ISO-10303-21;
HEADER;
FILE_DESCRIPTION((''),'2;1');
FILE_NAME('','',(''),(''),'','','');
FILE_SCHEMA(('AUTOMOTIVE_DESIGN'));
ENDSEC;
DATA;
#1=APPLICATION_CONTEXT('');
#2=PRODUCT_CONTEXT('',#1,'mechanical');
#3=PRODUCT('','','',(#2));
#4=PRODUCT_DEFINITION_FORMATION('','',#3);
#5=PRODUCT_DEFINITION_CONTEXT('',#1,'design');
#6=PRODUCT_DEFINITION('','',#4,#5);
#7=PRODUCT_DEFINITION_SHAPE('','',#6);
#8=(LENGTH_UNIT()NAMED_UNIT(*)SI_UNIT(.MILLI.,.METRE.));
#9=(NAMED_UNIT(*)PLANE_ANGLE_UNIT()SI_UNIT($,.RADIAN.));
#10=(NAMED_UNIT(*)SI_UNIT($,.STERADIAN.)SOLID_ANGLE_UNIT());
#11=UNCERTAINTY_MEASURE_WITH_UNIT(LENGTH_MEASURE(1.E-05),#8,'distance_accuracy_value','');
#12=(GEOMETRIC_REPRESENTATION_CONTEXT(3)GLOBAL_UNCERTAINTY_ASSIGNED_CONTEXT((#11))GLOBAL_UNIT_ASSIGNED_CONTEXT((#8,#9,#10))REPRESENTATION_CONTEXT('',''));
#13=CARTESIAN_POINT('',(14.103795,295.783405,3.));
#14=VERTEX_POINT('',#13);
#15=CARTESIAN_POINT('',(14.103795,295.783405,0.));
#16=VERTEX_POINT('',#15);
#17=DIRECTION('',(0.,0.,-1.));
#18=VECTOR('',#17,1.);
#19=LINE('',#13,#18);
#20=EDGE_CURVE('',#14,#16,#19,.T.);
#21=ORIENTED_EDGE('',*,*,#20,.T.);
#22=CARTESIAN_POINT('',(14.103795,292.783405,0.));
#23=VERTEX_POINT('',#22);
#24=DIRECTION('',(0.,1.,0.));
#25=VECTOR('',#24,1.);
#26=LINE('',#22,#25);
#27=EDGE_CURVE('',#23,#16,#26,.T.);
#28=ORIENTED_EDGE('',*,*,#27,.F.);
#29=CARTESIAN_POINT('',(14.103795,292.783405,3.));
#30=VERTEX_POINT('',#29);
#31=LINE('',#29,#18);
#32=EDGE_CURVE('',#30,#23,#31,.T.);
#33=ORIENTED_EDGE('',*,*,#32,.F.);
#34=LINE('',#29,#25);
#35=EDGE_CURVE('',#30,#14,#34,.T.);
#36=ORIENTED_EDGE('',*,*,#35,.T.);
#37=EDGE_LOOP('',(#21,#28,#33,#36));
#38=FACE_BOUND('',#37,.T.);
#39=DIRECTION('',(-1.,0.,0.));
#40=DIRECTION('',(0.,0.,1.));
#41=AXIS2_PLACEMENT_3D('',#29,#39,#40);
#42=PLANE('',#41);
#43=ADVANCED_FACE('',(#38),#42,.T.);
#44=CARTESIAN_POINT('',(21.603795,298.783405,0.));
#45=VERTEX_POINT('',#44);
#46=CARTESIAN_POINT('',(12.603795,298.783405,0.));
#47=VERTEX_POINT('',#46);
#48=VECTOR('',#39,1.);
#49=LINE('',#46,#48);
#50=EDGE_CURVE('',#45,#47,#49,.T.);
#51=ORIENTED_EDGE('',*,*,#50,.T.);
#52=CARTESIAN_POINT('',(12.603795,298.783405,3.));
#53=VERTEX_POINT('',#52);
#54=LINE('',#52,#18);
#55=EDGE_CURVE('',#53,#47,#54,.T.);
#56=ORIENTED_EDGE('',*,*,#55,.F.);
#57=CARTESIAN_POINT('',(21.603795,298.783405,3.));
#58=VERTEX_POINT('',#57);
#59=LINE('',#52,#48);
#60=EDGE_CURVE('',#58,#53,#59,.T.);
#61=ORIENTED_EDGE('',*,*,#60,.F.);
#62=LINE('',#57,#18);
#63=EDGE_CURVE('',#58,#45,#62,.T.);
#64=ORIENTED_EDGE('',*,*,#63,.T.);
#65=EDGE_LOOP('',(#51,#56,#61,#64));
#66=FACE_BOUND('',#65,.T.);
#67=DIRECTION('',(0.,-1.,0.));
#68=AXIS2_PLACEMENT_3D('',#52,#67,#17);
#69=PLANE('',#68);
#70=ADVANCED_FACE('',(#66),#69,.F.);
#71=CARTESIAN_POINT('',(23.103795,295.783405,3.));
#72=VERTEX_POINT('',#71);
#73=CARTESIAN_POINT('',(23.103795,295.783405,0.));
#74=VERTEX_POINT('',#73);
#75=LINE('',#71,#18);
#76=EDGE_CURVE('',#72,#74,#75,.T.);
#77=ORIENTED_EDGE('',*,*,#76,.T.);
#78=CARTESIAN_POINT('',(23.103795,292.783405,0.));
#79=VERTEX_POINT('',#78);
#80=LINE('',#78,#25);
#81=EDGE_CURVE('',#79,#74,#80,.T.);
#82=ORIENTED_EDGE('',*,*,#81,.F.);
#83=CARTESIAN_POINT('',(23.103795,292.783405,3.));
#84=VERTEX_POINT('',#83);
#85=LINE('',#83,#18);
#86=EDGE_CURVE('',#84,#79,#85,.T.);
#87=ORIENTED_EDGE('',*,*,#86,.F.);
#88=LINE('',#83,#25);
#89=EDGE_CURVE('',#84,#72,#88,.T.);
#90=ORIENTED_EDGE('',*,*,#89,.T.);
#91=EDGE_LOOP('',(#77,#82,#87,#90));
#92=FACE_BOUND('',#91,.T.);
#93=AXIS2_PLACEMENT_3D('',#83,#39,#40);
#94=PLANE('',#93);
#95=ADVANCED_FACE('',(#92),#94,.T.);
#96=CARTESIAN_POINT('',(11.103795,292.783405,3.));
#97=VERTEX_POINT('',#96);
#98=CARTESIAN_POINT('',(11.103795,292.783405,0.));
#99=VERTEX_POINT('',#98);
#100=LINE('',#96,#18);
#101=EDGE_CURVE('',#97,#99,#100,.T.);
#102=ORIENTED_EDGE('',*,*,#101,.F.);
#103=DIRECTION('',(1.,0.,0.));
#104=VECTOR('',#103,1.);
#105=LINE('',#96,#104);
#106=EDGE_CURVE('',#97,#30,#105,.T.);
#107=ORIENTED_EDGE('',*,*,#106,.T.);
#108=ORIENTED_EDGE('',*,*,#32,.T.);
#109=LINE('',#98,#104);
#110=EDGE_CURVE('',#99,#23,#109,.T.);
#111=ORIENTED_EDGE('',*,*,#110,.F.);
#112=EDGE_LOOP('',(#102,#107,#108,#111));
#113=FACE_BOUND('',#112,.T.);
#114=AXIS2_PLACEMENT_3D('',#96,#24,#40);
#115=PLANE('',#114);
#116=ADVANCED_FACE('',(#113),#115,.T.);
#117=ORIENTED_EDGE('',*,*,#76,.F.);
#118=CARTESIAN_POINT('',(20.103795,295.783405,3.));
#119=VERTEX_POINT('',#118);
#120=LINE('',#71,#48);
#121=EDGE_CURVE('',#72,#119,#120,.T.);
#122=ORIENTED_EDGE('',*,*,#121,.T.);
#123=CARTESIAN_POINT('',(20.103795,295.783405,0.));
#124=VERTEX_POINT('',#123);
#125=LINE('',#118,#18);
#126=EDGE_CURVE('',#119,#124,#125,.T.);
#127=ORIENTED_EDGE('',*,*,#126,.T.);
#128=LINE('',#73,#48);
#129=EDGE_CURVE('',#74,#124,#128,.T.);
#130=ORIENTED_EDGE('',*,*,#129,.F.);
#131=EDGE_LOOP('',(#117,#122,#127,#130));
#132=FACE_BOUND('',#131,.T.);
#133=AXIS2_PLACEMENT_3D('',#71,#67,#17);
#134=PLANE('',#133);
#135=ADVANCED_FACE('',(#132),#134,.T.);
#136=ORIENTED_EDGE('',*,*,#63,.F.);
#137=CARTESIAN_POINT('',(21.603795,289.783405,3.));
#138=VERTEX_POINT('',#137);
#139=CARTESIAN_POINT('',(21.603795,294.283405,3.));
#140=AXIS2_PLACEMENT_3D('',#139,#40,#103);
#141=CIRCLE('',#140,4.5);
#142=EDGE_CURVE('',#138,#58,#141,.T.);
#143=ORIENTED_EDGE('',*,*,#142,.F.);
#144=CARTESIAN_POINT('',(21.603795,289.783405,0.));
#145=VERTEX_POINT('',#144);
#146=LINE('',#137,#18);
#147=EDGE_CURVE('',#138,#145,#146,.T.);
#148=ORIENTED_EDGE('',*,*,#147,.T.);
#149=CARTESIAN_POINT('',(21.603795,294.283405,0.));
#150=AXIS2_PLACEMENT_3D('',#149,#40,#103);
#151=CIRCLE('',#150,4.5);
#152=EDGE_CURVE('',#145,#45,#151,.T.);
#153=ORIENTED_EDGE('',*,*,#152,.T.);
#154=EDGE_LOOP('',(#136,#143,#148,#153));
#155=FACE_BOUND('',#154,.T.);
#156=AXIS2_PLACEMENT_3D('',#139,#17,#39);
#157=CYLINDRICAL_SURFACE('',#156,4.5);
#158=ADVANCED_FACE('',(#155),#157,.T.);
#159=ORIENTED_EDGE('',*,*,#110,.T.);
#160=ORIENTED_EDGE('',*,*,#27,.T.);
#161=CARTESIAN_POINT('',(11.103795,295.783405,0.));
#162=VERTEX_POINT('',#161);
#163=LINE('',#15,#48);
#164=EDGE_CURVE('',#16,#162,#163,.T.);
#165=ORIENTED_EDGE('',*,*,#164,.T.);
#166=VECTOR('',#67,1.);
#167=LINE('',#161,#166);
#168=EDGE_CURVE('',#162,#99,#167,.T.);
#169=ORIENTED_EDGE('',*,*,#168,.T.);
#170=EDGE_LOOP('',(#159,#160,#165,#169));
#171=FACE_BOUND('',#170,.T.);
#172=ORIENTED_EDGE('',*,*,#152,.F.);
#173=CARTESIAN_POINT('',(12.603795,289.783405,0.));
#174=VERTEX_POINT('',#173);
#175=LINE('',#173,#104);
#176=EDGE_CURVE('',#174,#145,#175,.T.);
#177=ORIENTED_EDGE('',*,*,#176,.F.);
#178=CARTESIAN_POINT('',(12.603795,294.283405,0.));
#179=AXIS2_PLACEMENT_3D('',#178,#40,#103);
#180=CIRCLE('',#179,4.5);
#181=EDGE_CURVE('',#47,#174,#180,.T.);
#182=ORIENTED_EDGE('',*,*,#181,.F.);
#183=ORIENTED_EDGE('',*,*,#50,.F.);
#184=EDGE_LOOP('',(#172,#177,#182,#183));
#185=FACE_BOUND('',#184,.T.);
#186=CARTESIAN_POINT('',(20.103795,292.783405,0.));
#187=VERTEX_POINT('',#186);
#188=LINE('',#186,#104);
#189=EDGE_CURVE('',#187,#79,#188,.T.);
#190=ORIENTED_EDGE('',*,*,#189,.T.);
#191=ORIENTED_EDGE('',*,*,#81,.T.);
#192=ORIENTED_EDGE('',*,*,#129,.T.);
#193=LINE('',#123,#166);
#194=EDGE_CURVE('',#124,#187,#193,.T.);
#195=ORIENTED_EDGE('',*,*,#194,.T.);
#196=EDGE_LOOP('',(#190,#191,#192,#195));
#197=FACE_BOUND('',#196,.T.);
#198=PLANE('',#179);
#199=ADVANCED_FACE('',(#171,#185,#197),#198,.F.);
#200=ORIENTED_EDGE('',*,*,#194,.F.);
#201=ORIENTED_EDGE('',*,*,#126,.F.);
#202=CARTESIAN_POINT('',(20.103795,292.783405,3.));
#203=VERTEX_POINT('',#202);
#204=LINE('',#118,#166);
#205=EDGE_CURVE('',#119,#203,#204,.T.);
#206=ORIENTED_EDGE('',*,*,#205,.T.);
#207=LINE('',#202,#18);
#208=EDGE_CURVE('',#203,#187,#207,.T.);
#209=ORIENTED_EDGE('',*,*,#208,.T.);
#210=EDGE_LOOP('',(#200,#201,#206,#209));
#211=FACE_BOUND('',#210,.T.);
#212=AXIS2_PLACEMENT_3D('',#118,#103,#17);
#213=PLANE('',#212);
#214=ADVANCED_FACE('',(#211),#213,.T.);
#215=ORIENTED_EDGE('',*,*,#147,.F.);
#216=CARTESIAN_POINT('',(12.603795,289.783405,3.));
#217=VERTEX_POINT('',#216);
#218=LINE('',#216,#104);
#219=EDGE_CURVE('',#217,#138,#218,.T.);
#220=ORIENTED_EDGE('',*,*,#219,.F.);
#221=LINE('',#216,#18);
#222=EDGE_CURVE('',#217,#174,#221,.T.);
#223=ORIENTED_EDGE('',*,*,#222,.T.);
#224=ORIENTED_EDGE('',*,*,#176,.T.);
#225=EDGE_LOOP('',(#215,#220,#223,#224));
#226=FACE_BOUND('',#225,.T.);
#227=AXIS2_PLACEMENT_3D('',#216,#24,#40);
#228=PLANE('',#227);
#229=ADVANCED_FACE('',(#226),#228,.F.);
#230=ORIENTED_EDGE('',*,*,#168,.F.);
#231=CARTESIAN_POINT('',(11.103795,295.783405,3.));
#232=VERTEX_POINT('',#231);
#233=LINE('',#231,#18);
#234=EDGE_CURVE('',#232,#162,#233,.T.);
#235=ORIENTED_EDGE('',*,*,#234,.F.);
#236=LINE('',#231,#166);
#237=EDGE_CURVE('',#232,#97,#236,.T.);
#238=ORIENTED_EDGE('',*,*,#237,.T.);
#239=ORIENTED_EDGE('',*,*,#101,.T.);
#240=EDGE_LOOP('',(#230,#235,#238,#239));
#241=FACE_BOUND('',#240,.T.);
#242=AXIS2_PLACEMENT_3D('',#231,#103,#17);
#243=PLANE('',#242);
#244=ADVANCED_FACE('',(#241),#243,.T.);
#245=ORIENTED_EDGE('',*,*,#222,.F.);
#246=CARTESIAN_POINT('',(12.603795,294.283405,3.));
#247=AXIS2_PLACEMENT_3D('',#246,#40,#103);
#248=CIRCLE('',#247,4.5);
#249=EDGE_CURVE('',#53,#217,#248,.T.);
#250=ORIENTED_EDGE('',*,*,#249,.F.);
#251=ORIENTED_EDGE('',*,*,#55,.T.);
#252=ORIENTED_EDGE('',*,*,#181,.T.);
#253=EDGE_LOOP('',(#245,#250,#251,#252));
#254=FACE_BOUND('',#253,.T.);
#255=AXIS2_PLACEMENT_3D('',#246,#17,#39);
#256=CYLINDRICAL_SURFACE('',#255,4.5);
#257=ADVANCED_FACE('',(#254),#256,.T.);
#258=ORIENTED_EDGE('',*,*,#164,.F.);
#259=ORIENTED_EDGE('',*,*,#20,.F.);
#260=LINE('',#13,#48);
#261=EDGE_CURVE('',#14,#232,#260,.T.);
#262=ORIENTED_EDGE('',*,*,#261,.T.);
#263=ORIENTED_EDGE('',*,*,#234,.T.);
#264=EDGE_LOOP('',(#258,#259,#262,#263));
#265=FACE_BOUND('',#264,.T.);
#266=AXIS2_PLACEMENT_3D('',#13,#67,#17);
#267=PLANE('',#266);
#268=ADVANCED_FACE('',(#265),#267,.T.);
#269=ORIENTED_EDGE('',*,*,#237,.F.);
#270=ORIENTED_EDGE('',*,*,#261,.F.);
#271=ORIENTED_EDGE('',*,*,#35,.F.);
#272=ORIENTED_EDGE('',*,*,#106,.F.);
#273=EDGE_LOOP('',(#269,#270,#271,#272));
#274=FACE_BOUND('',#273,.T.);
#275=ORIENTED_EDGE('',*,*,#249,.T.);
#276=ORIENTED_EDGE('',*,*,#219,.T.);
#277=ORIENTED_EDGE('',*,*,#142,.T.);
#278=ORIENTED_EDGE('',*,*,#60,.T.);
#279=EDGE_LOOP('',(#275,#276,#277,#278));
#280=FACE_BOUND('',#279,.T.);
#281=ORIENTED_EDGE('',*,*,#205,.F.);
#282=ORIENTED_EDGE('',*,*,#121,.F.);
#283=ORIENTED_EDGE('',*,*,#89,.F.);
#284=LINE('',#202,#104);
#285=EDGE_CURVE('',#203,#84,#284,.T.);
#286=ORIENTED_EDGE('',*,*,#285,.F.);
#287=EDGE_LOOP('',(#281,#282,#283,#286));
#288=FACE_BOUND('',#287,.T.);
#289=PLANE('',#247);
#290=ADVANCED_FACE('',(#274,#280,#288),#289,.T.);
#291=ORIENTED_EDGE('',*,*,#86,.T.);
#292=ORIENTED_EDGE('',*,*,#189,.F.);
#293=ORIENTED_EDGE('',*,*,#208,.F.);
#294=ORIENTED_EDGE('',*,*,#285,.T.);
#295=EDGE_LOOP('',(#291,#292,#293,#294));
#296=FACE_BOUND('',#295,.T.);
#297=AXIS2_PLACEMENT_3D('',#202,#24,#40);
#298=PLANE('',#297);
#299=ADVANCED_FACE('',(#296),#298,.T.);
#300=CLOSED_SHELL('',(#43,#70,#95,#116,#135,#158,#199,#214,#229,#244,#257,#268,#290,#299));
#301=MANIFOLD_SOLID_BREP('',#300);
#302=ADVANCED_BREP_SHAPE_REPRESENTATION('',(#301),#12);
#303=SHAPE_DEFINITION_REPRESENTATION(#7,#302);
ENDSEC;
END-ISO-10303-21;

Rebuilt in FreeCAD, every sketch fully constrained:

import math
import FreeCAD as App
import Part
import Sketcher

doc = App.newDocument("Part")
params = doc.addObject("Spreadsheet::Sheet", "Params")
for row, (alias, value) in enumerate([
    ("sketch1_radius", "4.5 mm"),
    ("sketch1_width", "9 mm"),
    ("sketch1_width2", "3 mm"),
    ("pad1_length", "3 mm"),
], start=1):
    params.set(f"A{row}", alias)
    params.set(f"B{row}", "=" + value)
    params.setAlias(f"B{row}", alias)

body = doc.addObject("PartDesign::Body", "Body")

# Sketch on XY plane
sketch1 = body.newObject("Sketcher::SketchObject", "Sketch")
sketch1.AttachmentSupport = (doc.getObject("XY_Plane"), [""])
sketch1.MapMode = "FlatFace"
sketch1.addGeometry([
    Part.LineSegment(App.Vector(21.6, 298.8, 0), App.Vector(12.6, 298.8, 0)),  # 0
    Part.ArcOfCircle(Part.Circle(App.Vector(12.6, 294.3, 0), App.Vector(0, 0, 1), 4.5), math.radians(90), math.radians(270)),  # 1
    Part.LineSegment(App.Vector(12.6, 289.8, 0), App.Vector(21.6, 289.8, 0)),  # 2
    Part.ArcOfCircle(Part.Circle(App.Vector(21.6, 294.3, 0), App.Vector(0, 0, 1), 4.5), math.radians(-90), math.radians(90)),  # 3
    Part.LineSegment(App.Vector(20.1, 292.8, 0), App.Vector(20.1, 295.8, 0)),  # 4
    Part.LineSegment(App.Vector(20.1, 295.8, 0), App.Vector(23.1, 295.8, 0)),  # 5
    Part.LineSegment(App.Vector(23.1, 295.8, 0), App.Vector(23.1, 292.8, 0)),  # 6
    Part.LineSegment(App.Vector(23.1, 292.8, 0), App.Vector(20.1, 292.8, 0)),  # 7
    Part.LineSegment(App.Vector(11.1, 292.8, 0), App.Vector(11.1, 295.8, 0)),  # 8
    Part.LineSegment(App.Vector(11.1, 295.8, 0), App.Vector(14.1, 295.8, 0)),  # 9
    Part.LineSegment(App.Vector(14.1, 295.8, 0), App.Vector(14.1, 292.8, 0)),  # 10
    Part.LineSegment(App.Vector(14.1, 292.8, 0), App.Vector(11.1, 292.8, 0)),  # 11
], False)
sketch1.addConstraint([
    Sketcher.Constraint("Tangent", 0, 2, 1, 1),
    Sketcher.Constraint("Tangent", 1, 2, 2, 1),
    Sketcher.Constraint("Tangent", 2, 2, 3, 1),
    Sketcher.Constraint("Tangent", 3, 2, 0, 1),
    Sketcher.Constraint("Coincident", 4, 2, 5, 1),
    Sketcher.Constraint("Coincident", 5, 2, 6, 1),
    Sketcher.Constraint("Coincident", 6, 2, 7, 1),
    Sketcher.Constraint("Coincident", 7, 2, 4, 1),
    Sketcher.Constraint("Coincident", 8, 2, 9, 1),
    Sketcher.Constraint("Coincident", 9, 2, 10, 1),
    Sketcher.Constraint("Coincident", 10, 2, 11, 1),
    Sketcher.Constraint("Coincident", 11, 2, 8, 1),
    Sketcher.Constraint("Horizontal", 0),
    Sketcher.Constraint("Horizontal", 2),
    Sketcher.Constraint("Vertical", 4),
    Sketcher.Constraint("Horizontal", 5),
    Sketcher.Constraint("Vertical", 6),
    Sketcher.Constraint("Horizontal", 7),
    Sketcher.Constraint("Vertical", 8),
    Sketcher.Constraint("Horizontal", 9),
    Sketcher.Constraint("Vertical", 10),
    Sketcher.Constraint("Horizontal", 11),
    Sketcher.Constraint("Horizontal", 5, 2, 8, 2),
    Sketcher.Constraint("Horizontal", 7, 2, 10, 2),
    Sketcher.Constraint("Equal", 7, 9),
    Sketcher.Constraint("Equal", 11, 4),
    Sketcher.Constraint("Radius", 1, 4.5),
    Sketcher.Constraint("DistanceX", 0, 2, 0, 1, 9.0),
    Sketcher.Constraint("DistanceX", 5, 1, 5, 2, 3.0),
    Sketcher.Constraint("DistanceY", 4, 2, 3, 2, 3.0),
    Sketcher.Constraint("DistanceX", 8, 2, 4, 2, 9.0),
    Sketcher.Constraint("DistanceX", 4, 2, 3, 3, 1.5),
    Sketcher.Constraint("DistanceX", -1, 1, 1, 3, 12.603795),
    Sketcher.Constraint("DistanceY", -1, 1, 1, 3, 294.283405),
])
sketch1.setExpression("Constraints[26]", "Params.sketch1_radius")
sketch1.setExpression("Constraints[27]", "Params.sketch1_width")
sketch1.setExpression("Constraints[28]", "Params.sketch1_width2")
pad1 = body.newObject("PartDesign::Pad", "Pad")
pad1.Profile = sketch1
pad1.setExpression("Length", "Params.pad1_length")

doc.recompute()
